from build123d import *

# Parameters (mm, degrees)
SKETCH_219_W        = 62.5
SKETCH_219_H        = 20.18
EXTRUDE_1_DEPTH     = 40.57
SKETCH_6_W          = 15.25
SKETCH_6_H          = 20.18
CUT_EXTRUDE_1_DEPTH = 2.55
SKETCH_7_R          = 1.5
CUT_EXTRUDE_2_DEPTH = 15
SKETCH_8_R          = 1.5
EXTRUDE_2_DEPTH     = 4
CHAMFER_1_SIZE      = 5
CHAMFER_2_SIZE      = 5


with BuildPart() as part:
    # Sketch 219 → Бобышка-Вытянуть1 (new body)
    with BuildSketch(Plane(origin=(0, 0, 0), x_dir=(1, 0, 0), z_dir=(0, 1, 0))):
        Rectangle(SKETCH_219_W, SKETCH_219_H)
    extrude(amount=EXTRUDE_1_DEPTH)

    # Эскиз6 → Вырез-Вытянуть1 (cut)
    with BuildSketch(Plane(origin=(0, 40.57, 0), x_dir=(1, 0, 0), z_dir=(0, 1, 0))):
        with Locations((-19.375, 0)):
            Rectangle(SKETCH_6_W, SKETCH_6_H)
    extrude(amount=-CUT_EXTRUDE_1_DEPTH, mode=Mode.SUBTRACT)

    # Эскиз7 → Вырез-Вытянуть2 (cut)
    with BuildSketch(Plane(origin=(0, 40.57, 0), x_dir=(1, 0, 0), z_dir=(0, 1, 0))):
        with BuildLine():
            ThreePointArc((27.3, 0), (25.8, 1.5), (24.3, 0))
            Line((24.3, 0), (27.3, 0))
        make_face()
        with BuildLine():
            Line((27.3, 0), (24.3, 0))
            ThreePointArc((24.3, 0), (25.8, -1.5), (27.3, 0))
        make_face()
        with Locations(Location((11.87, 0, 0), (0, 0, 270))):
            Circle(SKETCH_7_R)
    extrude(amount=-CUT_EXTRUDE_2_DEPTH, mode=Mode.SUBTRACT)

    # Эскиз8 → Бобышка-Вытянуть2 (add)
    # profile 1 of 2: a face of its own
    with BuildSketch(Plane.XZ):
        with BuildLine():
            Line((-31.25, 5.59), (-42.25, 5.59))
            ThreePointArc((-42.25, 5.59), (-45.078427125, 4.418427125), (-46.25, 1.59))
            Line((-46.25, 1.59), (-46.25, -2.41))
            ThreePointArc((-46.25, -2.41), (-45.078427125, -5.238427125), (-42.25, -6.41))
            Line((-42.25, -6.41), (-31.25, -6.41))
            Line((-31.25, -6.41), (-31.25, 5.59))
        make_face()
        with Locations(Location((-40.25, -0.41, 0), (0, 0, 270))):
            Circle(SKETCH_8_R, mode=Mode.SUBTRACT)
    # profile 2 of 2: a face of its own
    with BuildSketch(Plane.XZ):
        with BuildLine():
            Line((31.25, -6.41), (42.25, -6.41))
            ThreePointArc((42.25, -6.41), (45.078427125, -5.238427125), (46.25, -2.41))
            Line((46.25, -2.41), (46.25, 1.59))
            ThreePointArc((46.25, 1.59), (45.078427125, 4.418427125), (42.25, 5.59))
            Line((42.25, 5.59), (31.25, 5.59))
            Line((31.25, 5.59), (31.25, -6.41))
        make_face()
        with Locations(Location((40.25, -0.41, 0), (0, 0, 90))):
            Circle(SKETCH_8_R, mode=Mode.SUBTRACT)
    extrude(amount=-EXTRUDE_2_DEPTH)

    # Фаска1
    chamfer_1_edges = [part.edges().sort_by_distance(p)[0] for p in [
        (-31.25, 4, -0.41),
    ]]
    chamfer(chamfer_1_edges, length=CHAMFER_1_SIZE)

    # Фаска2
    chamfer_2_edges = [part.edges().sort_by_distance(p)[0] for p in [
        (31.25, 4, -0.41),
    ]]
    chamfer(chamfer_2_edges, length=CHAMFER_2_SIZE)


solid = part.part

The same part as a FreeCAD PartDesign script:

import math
import FreeCAD as App
import Part
import Sketcher

V = App.Vector


def edges_at(feature, points):
    """Names of the edges that pass closest to the given points."""
    edges = feature.Shape.Edges
    near = lambda p: min(range(len(edges)), key=lambda i: edges[i].distToShape(Part.Vertex(*p))[0])
    return sorted({f"Edge{near(p) + 1}" for p in points})

doc = App.newDocument("Part")
body = doc.addObject("PartDesign::Body", "Body")

sketch1 = body.newObject("Sketcher::SketchObject", "Sketch")
sketch1.AttachmentSupport = (doc.getObject("XZ_Plane"), [""])
sketch1.MapMode = "FlatFace"
sketch1.addGeometry([
    Part.LineSegment(V(-31.25, -10.09, 0), V(-31.25, 10.09, 0)),
    Part.LineSegment(V(-31.25, 10.09, 0), V(31.25, 10.09, 0)),
    Part.LineSegment(V(31.25, 10.09, 0), V(31.25, -10.09, 0)),
    Part.LineSegment(V(31.25, -10.09, 0), V(-31.25, -10.09, 0)),
], False)
sketch1.addConstraint([
    Sketcher.Constraint("Coincident", 0, 2, 1, 1),
    Sketcher.Constraint("Coincident", 1, 2, 2, 1),
    Sketcher.Constraint("Coincident", 2, 2, 3, 1),
    Sketcher.Constraint("Coincident", 3, 2, 0, 1),
    Sketcher.Constraint("Vertical", 0),
    Sketcher.Constraint("Horizontal", 1),
    Sketcher.Constraint("Vertical", 2),
    Sketcher.Constraint("Horizontal", 3),
    Sketcher.Constraint("Symmetric", 0, 2, 2, 2, -1, 1),
    Sketcher.Constraint("DistanceX", 1, 1, 1, 2, 62.5),
    Sketcher.Constraint("DistanceY", 0, 1, 0, 2, 20.18),
])
pad1 = body.newObject("PartDesign::Pad", "Pad")
pad1.Profile = sketch1
pad1.Length = 40.57
pad1.Reversed = True

sketch2 = body.newObject("Sketcher::SketchObject", "Sketch001")
sketch2.AttachmentSupport = (doc.getObject("XZ_Plane"), [""])
sketch2.MapMode = "FlatFace"
sketch2.AttachmentOffset = App.Placement(V(0, 0, -40.57), App.Rotation())
sketch2.addGeometry([
    Part.LineSegment(V(-27, -10.09, 0), V(-27, 10.09, 0)),
    Part.LineSegment(V(-27, 10.09, 0), V(-11.75, 10.09, 0)),
    Part.LineSegment(V(-11.75, 10.09, 0), V(-11.75, -10.09, 0)),
    Part.LineSegment(V(-11.75, -10.09, 0), V(-27, -10.09, 0)),
], False)
sketch2.addConstraint([
    Sketcher.Constraint("Coincident", 0, 2, 1, 1),
    Sketcher.Constraint("Coincident", 1, 2, 2, 1),
    Sketcher.Constraint("Coincident", 2, 2, 3, 1),
    Sketcher.Constraint("Coincident", 3, 2, 0, 1),
    Sketcher.Constraint("Vertical", 0),
    Sketcher.Constraint("Horizontal", 1),
    Sketcher.Constraint("Vertical", 2),
    Sketcher.Constraint("Horizontal", 3),
    Sketcher.Constraint("DistanceX", 0, 2, -1, 1, 27.0),
    Sketcher.Constraint("DistanceX", 1, 1, 1, 2, 15.25),
    Sketcher.Constraint("DistanceY", 0, 1, 0, 2, 20.18),
    Sketcher.Constraint("DistanceY", -1, 1, 0, 2, 10.09),
])
pocket1 = body.newObject("PartDesign::Pocket", "Pocket")
pocket1.Profile = sketch2
pocket1.Length = 2.55
pocket1.Reversed = True

sketch3 = body.newObject("Sketcher::SketchObject", "Sketch002")
sketch3.AttachmentSupport = (doc.getObject("XZ_Plane"), [""])
sketch3.MapMode = "FlatFace"
sketch3.AttachmentOffset = App.Placement(V(0, 0, -40.57), App.Rotation())
sketch3.addGeometry([
    Part.Circle(V(25.8, 0, 0), V(0, 0, 1), 1.5),
    Part.Circle(V(11.87, 0, 0), V(0, 0, 1), 1.5),
], False)
sketch3.addConstraint([
    Sketcher.Constraint("Equal", 0, 1),
    Sketcher.Constraint("PointOnObject", 0, 3, -1),
    Sketcher.Constraint("PointOnObject", 1, 3, -1),
    Sketcher.Constraint("Diameter", 0, 3.0),
    Sketcher.Constraint("DistanceX", -1, 1, 0, 3, 25.8),
    Sketcher.Constraint("DistanceX", -1, 1, 1, 3, 11.87),
])
pocket2 = body.newObject("PartDesign::Pocket", "Pocket001")
pocket2.Profile = sketch3
pocket2.Length = 15
pocket2.Reversed = True

sketch4 = body.newObject("Sketcher::SketchObject", "Sketch003")
sketch4.AttachmentSupport = (doc.getObject("XZ_Plane"), [""])
sketch4.MapMode = "FlatFace"
sketch4.addGeometry([
    Part.LineSegment(V(-31.25, 5.59, 0), V(-42.25, 5.59, 0)),
    Part.ArcOfCircle(Part.Circle(V(-42.25, 1.59, 0), V(0, 0, 1), 4), math.radians(90), math.radians(180)),
    Part.LineSegment(V(-46.25, 1.59, 0), V(-46.25, -2.41, 0)),
    Part.ArcOfCircle(Part.Circle(V(-42.25, -2.41, 0), V(0, 0, 1), 4), math.radians(180), math.radians(270)),
    Part.LineSegment(V(-42.25, -6.41, 0), V(-31.25, -6.41, 0)),
    Part.LineSegment(V(-31.25, -6.41, 0), V(-31.25, 5.59, 0)),
    Part.Circle(V(-40.25, -0.41, 0), V(0, 0, 1), 1.5),
    Part.LineSegment(V(31.25, -6.41, 0), V(42.25, -6.41, 0)),
    Part.ArcOfCircle(Part.Circle(V(42.25, -2.41, 0), V(0, 0, 1), 4), math.radians(-90), math.radians(0)),
    Part.LineSegment(V(46.25, -2.41, 0), V(46.25, 1.59, 0)),
    Part.ArcOfCircle(Part.Circle(V(42.25, 1.59, 0), V(0, 0, 1), 4), math.radians(0), math.radians(90)),
    Part.LineSegment(V(42.25, 5.59, 0), V(31.25, 5.59, 0)),
    Part.LineSegment(V(31.25, 5.59, 0), V(31.25, -6.41, 0)),
    Part.Circle(V(40.25, -0.41, 0), V(0, 0, 1), 1.5),
], False)
sketch4.addConstraint([
    Sketcher.Constraint("Tangent", 0, 2, 1, 1),
    Sketcher.Constraint("Tangent", 1, 2, 2, 1),
    Sketcher.Constraint("Tangent", 2, 2, 3, 1),
    Sketcher.Constraint("Tangent", 3, 2, 4, 1),
    Sketcher.Constraint("Coincident", 4, 2, 5, 1),
    Sketcher.Constraint("Coincident", 5, 2, 0, 1),
    Sketcher.Constraint("Tangent", 7, 2, 8, 1),
    Sketcher.Constraint("Tangent", 8, 2, 9, 1),
    Sketcher.Constraint("Tangent", 9, 2, 10, 1),
    Sketcher.Constraint("Tangent", 10, 2, 11, 1),
    Sketcher.Constraint("Coincident", 11, 2, 12, 1),
    Sketcher.Constraint("Coincident", 12, 2, 7, 1),
    Sketcher.Constraint("Horizontal", 0),
    Sketcher.Constraint("Vertical", 2),
    Sketcher.Constraint("Horizontal", 4),
    Sketcher.Constraint("Vertical", 5),
    Sketcher.Constraint("Horizontal", 7),
    Sketcher.Constraint("Vertical", 9),
    Sketcher.Constraint("Horizontal", 11),
    Sketcher.Constraint("Vertical", 12),
    Sketcher.Constraint("Equal", 1, 3),
    Sketcher.Constraint("Equal", 3, 8),
    Sketcher.Constraint("Equal", 8, 10),
    Sketcher.Constraint("Equal", 6, 13),
    Sketcher.Constraint("Symmetric", 3, 3, 8, 3, -2),
    Sketcher.Constraint("Symmetric", 6, 3, 13, 3, -2),
    Sketcher.Constraint("Symmetric", 5, 2, 11, 2, -2),
    Sketcher.Constraint("Diameter", 6, 3.0),
    Sketcher.Constraint("Radius", 1, 4.0),
    Sketcher.Constraint("DistanceX", 0, 2, 0, 1, 11.0),
    Sketcher.Constraint("DistanceY", 2, 2, 2, 1, 4.0),
    Sketcher.Constraint("DistanceX", 3, 3, 6, 3, 2.0),
    Sketcher.Constraint("DistanceY", 3, 3, 6, 3, 2.0),
    Sketcher.Constraint("DistanceX", 6, 3, 8, 3, 82.5),
    Sketcher.Constraint("DistanceY", -1, 1, 1, 3, 1.59),
])
pad2 = body.newObject("PartDesign::Pad", "Pad001")
pad2.Profile = sketch4
pad2.Length = 4
pad2.Reversed = True
doc.recompute()

chamfer = body.newObject("PartDesign::Chamfer", "Chamfer")
chamfer.Base = (pad2, edges_at(pad2, [(-31.25, 4, -0.41)]))
chamfer.Size = 5
doc.recompute()

chamfer2 = body.newObject("PartDesign::Chamfer", "Chamfer001")
chamfer2.Base = (chamfer, edges_at(chamfer, [(31.25, 4, -0.41)]))
chamfer2.Size = 5

doc.recompute()
